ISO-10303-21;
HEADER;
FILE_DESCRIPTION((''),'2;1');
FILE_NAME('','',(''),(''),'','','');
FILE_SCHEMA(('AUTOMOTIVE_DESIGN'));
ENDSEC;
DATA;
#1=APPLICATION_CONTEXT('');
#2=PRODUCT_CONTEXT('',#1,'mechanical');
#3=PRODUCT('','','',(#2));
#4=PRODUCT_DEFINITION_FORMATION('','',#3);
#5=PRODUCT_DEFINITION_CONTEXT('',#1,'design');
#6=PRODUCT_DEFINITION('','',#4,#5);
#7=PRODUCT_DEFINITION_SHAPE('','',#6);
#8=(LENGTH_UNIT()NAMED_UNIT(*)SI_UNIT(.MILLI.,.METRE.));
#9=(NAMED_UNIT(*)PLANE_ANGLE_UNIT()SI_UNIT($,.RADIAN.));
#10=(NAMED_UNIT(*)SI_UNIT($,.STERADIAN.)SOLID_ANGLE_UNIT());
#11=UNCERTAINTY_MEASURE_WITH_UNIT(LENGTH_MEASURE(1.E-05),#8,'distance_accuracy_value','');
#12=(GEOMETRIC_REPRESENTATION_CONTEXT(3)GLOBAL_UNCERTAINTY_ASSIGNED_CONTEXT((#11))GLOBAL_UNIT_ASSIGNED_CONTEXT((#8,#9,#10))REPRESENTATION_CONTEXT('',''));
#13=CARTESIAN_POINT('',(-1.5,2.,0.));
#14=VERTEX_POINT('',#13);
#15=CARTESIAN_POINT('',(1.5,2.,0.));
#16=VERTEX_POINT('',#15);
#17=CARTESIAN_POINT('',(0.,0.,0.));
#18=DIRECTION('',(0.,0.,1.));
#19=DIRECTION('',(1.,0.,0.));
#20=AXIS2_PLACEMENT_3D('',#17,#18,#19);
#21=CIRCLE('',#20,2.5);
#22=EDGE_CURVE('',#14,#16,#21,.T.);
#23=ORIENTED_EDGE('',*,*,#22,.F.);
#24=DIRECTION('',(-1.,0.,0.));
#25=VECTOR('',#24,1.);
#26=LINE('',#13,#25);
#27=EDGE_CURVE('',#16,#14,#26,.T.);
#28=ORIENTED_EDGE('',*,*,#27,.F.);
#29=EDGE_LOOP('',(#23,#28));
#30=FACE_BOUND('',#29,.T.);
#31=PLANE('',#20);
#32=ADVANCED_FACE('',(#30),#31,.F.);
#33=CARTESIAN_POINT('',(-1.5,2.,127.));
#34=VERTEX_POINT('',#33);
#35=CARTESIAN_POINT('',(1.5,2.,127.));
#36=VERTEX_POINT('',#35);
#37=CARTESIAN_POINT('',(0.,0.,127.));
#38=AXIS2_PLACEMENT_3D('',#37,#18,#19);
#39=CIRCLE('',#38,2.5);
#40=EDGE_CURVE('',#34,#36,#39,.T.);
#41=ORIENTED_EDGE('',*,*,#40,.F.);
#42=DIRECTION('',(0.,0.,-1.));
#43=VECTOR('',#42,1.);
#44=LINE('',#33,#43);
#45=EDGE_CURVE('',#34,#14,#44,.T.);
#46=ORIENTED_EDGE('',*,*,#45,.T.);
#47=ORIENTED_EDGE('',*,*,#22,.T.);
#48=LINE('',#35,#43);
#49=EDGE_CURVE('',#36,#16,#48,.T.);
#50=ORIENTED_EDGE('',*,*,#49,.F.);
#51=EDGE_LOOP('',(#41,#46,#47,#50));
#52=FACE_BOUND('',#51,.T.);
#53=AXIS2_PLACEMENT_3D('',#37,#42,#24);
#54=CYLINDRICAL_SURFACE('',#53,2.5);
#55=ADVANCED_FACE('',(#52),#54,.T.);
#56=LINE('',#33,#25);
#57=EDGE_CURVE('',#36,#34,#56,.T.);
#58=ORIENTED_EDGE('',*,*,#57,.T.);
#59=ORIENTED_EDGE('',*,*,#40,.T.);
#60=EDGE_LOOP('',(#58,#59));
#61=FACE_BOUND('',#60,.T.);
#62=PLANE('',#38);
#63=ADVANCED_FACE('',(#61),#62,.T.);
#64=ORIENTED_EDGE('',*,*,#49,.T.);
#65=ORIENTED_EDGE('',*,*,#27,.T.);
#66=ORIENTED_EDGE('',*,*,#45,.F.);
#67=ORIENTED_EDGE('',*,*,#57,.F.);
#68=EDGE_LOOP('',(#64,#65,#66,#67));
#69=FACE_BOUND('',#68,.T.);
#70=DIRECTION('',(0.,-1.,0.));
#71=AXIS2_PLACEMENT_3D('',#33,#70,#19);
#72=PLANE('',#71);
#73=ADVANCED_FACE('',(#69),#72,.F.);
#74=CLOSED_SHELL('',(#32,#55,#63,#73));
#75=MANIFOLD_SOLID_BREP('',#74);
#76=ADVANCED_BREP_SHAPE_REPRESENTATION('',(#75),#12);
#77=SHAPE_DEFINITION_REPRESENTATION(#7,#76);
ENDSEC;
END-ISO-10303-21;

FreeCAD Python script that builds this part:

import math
import FreeCAD as App
import Part
import Sketcher
Q = App.Units.Quantity

doc = App.newDocument("Part")
body = doc.addObject("PartDesign::Body", "Body")

# Sketch on XY plane
sketch1 = body.newObject("Sketcher::SketchObject", "Sketch")
sketch1.AttachmentSupport = (doc.getObject("XY_Plane"), [""])
sketch1.MapMode = "FlatFace"
sketch1.addGeometry([
    Part.LineSegment(App.Vector(1.5, 2, 0), App.Vector(-1.5, 2, 0)),
    Part.ArcOfCircle(Part.Circle(App.Vector(0, 0, 0), App.Vector(0, 0, 1), 2.5), math.radians(127), math.radians(413)),
], False)
sketch1.addConstraint([
    Sketcher.Constraint("Coincident", 0, 1, 1, 2),
    Sketcher.Constraint("Coincident", 1, 1, 0, 2),
    Sketcher.Constraint("Horizontal", 0),
    Sketcher.Constraint("Coincident", 1, 3, -1, 1),
    Sketcher.Constraint("Radius", 1, Q("2.5 mm")),
    Sketcher.Constraint("DistanceX", 0, 2, 0, 1, Q("3 mm")),
])
pad1 = body.newObject("PartDesign::Pad", "Pad")
pad1.Profile = sketch1
pad1.Length = 127

doc.recompute()
